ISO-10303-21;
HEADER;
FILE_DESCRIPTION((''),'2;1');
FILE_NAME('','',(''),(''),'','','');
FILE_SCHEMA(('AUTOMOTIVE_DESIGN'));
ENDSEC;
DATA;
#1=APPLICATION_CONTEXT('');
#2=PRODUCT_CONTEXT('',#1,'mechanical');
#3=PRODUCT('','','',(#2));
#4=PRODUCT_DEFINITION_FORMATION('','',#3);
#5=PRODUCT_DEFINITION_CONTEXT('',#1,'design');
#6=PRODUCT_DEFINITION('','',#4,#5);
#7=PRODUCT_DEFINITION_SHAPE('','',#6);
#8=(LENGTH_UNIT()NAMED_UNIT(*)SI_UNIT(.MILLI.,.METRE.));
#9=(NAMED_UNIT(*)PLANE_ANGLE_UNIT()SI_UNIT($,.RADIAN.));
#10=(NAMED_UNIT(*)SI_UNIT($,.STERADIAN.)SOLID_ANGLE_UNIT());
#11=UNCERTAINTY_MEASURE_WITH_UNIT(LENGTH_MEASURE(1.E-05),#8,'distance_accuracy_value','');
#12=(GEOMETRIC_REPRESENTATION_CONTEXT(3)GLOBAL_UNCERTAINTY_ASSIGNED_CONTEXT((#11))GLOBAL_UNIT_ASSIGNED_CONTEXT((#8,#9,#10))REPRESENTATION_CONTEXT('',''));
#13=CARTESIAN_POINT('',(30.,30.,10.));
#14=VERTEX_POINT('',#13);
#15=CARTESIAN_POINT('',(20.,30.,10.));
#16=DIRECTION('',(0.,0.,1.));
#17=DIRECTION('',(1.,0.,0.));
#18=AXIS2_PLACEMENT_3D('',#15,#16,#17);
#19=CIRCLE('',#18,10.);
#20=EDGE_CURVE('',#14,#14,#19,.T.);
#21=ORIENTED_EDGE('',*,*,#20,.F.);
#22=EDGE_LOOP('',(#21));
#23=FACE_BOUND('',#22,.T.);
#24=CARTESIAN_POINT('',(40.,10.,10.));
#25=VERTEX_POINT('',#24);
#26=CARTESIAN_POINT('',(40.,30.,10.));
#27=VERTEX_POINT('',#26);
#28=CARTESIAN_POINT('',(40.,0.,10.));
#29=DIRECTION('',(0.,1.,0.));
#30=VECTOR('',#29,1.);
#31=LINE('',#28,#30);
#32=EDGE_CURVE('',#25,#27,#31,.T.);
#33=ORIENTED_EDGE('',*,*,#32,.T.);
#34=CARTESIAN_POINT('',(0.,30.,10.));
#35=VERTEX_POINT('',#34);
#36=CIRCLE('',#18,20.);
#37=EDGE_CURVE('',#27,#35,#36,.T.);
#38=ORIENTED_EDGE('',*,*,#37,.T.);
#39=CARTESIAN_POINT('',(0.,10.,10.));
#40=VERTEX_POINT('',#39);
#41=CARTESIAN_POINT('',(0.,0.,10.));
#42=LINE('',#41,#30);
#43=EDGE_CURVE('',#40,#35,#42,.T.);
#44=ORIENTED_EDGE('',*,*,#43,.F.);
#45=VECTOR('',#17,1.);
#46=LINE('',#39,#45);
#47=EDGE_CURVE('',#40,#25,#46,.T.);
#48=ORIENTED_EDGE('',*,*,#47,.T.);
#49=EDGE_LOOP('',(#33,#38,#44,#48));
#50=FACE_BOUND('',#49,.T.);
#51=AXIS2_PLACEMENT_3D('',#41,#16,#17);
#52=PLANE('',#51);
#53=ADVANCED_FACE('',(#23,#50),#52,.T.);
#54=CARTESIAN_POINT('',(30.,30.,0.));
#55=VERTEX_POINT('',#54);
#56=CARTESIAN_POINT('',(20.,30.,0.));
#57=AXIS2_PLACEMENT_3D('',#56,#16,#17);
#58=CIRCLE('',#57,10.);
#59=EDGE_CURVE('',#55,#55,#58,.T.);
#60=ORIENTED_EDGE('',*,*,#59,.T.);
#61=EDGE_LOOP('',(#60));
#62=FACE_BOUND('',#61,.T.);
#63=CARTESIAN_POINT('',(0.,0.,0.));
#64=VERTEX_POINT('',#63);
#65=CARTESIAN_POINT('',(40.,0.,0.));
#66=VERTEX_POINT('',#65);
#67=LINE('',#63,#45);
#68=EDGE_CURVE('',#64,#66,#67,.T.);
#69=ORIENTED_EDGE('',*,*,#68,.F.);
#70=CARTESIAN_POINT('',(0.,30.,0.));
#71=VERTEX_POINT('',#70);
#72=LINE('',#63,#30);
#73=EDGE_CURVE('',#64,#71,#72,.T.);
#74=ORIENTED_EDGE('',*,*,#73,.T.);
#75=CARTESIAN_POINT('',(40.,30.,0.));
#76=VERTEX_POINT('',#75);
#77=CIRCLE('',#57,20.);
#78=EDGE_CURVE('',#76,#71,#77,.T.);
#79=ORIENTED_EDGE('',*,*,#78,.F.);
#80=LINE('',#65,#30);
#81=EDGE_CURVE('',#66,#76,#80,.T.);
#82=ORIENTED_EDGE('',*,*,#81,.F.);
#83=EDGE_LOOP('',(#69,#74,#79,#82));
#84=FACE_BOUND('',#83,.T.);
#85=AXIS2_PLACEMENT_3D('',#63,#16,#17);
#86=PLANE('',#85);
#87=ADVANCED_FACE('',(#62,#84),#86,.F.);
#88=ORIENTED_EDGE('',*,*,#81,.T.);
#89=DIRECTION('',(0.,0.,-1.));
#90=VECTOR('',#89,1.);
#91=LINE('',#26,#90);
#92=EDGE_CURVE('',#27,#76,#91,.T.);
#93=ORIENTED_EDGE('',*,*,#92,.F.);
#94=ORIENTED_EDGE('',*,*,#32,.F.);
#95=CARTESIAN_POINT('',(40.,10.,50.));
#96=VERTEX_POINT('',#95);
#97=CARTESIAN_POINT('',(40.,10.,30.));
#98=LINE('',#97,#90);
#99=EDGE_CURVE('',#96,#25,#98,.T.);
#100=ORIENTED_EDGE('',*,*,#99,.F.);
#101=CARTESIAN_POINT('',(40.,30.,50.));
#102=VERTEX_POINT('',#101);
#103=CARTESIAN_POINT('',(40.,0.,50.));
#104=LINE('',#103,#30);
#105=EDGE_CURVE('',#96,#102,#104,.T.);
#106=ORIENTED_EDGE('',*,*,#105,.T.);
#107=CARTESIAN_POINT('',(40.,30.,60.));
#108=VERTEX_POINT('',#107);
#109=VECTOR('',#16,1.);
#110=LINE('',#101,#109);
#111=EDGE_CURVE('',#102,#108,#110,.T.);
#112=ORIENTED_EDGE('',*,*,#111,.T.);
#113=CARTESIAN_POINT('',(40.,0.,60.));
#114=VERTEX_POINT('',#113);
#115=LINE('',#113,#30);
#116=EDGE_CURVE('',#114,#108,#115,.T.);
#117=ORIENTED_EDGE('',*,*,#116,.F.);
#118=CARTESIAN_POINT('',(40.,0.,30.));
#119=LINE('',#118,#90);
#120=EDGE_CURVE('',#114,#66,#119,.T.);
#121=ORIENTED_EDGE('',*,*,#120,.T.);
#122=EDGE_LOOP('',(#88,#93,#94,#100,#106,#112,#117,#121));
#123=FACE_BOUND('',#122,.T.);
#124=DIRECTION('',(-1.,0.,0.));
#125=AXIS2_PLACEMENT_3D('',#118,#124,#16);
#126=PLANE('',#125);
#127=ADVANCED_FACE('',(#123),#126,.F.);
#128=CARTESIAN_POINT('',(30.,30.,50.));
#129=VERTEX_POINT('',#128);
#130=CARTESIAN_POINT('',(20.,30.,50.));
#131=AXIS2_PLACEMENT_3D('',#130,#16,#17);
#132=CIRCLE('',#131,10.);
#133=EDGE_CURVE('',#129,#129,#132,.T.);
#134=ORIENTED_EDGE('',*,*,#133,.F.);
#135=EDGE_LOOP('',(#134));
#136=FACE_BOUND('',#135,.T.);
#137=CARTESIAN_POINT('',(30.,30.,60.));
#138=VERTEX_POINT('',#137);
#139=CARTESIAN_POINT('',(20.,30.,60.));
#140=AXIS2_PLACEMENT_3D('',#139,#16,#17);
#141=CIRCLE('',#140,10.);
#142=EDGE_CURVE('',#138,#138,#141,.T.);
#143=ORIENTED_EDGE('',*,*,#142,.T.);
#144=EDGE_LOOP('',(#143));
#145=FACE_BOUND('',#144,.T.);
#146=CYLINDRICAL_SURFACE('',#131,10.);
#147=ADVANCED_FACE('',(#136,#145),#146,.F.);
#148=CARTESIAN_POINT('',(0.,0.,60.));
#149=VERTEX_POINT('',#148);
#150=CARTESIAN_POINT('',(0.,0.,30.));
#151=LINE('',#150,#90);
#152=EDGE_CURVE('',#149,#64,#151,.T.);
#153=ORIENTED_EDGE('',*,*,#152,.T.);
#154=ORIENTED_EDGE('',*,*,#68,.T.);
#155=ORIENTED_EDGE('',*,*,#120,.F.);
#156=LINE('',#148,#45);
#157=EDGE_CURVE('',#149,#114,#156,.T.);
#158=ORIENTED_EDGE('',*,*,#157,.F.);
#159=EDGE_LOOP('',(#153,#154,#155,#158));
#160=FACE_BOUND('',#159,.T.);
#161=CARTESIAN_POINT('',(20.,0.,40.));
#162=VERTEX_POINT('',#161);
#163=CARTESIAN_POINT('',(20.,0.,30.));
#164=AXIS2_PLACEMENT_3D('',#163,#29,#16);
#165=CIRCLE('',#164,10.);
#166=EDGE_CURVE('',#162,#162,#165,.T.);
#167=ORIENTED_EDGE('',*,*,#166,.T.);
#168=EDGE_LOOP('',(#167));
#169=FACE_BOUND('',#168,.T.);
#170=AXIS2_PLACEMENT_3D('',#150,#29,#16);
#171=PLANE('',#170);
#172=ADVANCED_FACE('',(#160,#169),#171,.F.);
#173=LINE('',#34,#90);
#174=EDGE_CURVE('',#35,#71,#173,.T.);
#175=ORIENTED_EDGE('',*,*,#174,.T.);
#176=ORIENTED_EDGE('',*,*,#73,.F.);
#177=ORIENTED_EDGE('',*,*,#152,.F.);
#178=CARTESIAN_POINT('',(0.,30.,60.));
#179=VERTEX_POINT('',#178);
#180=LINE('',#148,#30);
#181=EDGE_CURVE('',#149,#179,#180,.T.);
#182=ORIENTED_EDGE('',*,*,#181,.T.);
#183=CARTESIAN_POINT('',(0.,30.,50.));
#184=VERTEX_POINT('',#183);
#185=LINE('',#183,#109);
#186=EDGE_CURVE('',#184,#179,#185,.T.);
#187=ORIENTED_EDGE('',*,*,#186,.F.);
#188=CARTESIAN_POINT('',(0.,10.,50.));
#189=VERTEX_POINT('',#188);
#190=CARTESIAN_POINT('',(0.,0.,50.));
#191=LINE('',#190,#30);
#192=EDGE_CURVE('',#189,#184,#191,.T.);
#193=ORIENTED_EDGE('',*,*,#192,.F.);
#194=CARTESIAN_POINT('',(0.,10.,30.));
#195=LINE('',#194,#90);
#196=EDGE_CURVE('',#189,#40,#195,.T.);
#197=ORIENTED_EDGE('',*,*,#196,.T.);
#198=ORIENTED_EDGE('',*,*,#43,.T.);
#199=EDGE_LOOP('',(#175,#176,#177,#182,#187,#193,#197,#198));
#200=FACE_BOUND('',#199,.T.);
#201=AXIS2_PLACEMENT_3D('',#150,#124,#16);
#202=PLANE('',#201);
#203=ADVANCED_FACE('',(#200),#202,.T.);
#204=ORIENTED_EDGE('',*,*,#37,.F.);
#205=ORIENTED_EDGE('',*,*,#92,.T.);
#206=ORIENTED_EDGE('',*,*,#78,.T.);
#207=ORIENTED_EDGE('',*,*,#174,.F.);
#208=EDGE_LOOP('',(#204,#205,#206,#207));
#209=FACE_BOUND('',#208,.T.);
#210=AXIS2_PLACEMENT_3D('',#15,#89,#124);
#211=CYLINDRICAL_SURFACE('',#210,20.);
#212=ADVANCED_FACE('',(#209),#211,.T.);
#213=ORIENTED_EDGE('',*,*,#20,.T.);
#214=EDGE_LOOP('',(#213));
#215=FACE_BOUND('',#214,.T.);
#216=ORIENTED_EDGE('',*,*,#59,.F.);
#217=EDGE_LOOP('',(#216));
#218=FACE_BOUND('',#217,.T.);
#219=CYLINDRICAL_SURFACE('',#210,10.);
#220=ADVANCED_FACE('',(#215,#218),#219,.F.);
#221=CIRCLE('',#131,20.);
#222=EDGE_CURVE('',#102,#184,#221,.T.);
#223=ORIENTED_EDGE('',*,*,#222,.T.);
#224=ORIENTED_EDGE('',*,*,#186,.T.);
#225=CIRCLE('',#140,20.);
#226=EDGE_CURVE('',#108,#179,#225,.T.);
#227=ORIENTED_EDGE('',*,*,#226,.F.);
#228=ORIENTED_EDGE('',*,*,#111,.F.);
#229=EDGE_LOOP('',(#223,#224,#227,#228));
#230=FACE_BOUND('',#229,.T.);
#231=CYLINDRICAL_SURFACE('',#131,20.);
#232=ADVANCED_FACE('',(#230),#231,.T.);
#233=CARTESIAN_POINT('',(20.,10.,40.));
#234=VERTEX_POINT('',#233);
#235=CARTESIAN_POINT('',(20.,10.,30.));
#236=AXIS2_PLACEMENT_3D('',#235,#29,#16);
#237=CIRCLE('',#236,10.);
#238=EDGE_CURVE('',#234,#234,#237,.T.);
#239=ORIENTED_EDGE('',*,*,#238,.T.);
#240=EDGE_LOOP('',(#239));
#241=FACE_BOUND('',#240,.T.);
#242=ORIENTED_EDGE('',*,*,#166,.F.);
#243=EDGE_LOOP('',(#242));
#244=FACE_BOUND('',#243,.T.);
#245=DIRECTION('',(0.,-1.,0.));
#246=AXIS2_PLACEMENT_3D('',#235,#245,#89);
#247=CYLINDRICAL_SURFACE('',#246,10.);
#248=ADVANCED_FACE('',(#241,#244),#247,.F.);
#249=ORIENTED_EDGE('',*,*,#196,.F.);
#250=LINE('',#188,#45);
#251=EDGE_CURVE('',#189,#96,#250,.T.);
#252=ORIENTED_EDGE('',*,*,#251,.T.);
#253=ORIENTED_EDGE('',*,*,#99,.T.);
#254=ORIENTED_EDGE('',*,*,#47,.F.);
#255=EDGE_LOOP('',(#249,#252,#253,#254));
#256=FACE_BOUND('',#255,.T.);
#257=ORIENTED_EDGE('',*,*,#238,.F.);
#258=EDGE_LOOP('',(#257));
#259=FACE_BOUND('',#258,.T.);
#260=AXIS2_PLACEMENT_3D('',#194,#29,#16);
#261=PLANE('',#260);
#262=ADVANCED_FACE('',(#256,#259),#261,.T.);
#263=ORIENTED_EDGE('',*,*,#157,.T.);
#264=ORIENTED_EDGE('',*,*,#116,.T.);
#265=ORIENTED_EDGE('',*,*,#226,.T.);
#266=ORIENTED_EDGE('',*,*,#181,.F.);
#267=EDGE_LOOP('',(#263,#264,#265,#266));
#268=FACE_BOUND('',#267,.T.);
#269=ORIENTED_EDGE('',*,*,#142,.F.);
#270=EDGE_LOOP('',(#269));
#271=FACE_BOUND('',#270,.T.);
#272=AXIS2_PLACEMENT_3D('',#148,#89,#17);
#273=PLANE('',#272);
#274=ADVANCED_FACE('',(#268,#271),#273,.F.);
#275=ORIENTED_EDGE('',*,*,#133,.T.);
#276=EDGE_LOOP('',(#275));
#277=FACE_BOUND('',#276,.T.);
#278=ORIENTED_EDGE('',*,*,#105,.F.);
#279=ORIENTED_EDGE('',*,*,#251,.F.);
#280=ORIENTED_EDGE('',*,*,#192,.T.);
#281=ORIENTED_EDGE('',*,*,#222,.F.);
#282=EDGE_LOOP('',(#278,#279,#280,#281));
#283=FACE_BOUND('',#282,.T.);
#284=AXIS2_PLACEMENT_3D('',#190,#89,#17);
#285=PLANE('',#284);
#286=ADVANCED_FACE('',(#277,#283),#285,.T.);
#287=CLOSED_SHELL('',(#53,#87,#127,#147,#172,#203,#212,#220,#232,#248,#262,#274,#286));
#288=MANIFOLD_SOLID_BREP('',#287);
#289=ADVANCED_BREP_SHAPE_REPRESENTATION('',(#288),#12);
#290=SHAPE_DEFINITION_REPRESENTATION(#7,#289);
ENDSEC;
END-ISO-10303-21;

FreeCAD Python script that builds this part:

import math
import FreeCAD as App
import Part
import Sketcher

V = App.Vector

doc = App.newDocument("Part")
params = doc.addObject("Spreadsheet::Sheet", "Params")
for row, (alias, value) in enumerate([
    ("sketch1_width", "40 mm"),
    ("sketch1_height", "10 mm"),
    ("pad1_length", "30 mm"),
    ("sketch2_diameter", "20 mm"),
    ("sketch2_radius", "20 mm"),
    ("sketch2_height", "20 mm"),
    ("pad2_length", "10 mm"),
    ("sketch3_diameter", "20 mm"),
    ("pocket1_length", "10 mm"),
], start=1):
    params.set(f"A{row}", alias)
    params.set(f"B{row}", "=" + value)
    params.setAlias(f"B{row}", alias)

body = doc.addObject("PartDesign::Body", "Body")

# Sketch on XY plane
sketch1 = body.newObject("Sketcher::SketchObject", "Sketch")
sketch1.AttachmentSupport = (doc.getObject("XY_Plane"), [""])
sketch1.MapMode = "FlatFace"
sketch1.addGeometry([
    Part.LineSegment(V(0, 10, 0), V(0, 0, 0)),
    Part.LineSegment(V(0, 0, 0), V(40, 0, 0)),
    Part.LineSegment(V(40, 0, 0), V(40, 10, 0)),
    Part.LineSegment(V(40, 10, 0), V(0, 10, 0)),
], False)
sketch1.addConstraint([
    Sketcher.Constraint("Coincident", 0, 2, 1, 1),
    Sketcher.Constraint("Coincident", 1, 2, 2, 1),
    Sketcher.Constraint("Coincident", 2, 2, 3, 1),
    Sketcher.Constraint("Coincident", 3, 2, 0, 1),
    Sketcher.Constraint("Vertical", 0),
    Sketcher.Constraint("Horizontal", 1),
    Sketcher.Constraint("Vertical", 2),
    Sketcher.Constraint("Horizontal", 3),
    Sketcher.Constraint("Coincident", 0, 2, -1, 1),
    Sketcher.Constraint("DistanceX", 1, 1, 1, 2, 40.0),
    Sketcher.Constraint("DistanceY", 0, 2, 0, 1, 10.0),
])
sketch1.setExpression("Constraints[9]", "Params.sketch1_width")
sketch1.setExpression("Constraints[10]", "Params.sketch1_height")
pad1 = body.newObject("PartDesign::Pad", "Pad")
pad1.Profile = sketch1
pad1.setExpression("Length", "Params.pad1_length")

# Sketch on XY plane
sketch2 = body.newObject("Sketcher::SketchObject", "Sketch001")
sketch2.AttachmentSupport = (doc.getObject("XY_Plane"), [""])
sketch2.MapMode = "FlatFace"
sketch2.addGeometry([
    Part.LineSegment(V(0, 30, 0), V(0, 10, 0)),  # 0
    Part.LineSegment(V(0, 10, 0), V(40, 10, 0)),  # 1
    Part.LineSegment(V(40, 10, 0), V(40, 30, 0)),  # 2
    Part.ArcOfCircle(Part.Circle(V(20, 30, 0), V(0, 0, 1), 20), math.radians(0), math.radians(180)),  # 3
    Part.Circle(V(20, 30, 0), V(0, 0, 1), 10),  # 4
], False)
sketch2.addConstraint([
    Sketcher.Constraint("Coincident", 0, 2, 1, 1),
    Sketcher.Constraint("Coincident", 1, 2, 2, 1),
    Sketcher.Constraint("Tangent", 2, 2, 3, 1),
    Sketcher.Constraint("Tangent", 3, 2, 0, 1),
    Sketcher.Constraint("Vertical", 0),
    Sketcher.Constraint("Horizontal", 1),
    Sketcher.Constraint("Vertical", 2),
    Sketcher.Constraint("Coincident", 4, 3, 3, 3),
    Sketcher.Constraint("PointOnObject", 0, 2, -2),
    Sketcher.Constraint("Diameter", 4, 20.0),
    Sketcher.Constraint("Radius", 3, 20.0),
    Sketcher.Constraint("DistanceY", 0, 2, 0, 1, 20.0),
    Sketcher.Constraint("DistanceY", -1, 1, 3, 3, 30.0),
])
sketch2.setExpression("Constraints[9]", "Params.sketch2_diameter")
sketch2.setExpression("Constraints[10]", "Params.sketch2_radius")
sketch2.setExpression("Constraints[11]", "Params.sketch2_height")
pad2 = body.newObject("PartDesign::Pad", "Pad001")
pad2.Profile = sketch2
pad2.setExpression("Length", "Params.pad2_length")
doc.recompute()

datumplane = body.newObject("PartDesign::Plane", "DatumPlane")
datumplane.AttachmentSupport = (doc.getObject("XY_Plane"), [""])
datumplane.MapMode = "FlatFace"
datumplane.AttachmentOffset = App.Placement(V(0, 0, 30), App.Rotation())
mirrored = body.newObject("PartDesign::Mirrored", "Mirrored")
mirrored.Originals = [pad1, pad2]
mirrored.MirrorPlane = (datumplane, [""])
body.Tip = mirrored

# Sketch on XZ plane
sketch3 = body.newObject("Sketcher::SketchObject", "Sketch002")
sketch3.AttachmentSupport = (doc.getObject("XZ_Plane"), [""])
sketch3.MapMode = "FlatFace"
sketch3.addGeometry(Part.Circle(V(20, 30, 0), V(0, 0, 1), 10), False)
sketch3.addConstraint([
    Sketcher.Constraint("Diameter", 0, 20.0),
    Sketcher.Constraint("DistanceX", -1, 1, 0, 3, 20.0),
    Sketcher.Constraint("DistanceY", -1, 1, 0, 3, 30.0),
])
sketch3.setExpression("Constraints[0]", "Params.sketch3_diameter")
pocket1 = body.newObject("PartDesign::Pocket", "Pocket")
pocket1.Profile = sketch3
pocket1.setExpression("Length", "Params.pocket1_length")

doc.recompute()
